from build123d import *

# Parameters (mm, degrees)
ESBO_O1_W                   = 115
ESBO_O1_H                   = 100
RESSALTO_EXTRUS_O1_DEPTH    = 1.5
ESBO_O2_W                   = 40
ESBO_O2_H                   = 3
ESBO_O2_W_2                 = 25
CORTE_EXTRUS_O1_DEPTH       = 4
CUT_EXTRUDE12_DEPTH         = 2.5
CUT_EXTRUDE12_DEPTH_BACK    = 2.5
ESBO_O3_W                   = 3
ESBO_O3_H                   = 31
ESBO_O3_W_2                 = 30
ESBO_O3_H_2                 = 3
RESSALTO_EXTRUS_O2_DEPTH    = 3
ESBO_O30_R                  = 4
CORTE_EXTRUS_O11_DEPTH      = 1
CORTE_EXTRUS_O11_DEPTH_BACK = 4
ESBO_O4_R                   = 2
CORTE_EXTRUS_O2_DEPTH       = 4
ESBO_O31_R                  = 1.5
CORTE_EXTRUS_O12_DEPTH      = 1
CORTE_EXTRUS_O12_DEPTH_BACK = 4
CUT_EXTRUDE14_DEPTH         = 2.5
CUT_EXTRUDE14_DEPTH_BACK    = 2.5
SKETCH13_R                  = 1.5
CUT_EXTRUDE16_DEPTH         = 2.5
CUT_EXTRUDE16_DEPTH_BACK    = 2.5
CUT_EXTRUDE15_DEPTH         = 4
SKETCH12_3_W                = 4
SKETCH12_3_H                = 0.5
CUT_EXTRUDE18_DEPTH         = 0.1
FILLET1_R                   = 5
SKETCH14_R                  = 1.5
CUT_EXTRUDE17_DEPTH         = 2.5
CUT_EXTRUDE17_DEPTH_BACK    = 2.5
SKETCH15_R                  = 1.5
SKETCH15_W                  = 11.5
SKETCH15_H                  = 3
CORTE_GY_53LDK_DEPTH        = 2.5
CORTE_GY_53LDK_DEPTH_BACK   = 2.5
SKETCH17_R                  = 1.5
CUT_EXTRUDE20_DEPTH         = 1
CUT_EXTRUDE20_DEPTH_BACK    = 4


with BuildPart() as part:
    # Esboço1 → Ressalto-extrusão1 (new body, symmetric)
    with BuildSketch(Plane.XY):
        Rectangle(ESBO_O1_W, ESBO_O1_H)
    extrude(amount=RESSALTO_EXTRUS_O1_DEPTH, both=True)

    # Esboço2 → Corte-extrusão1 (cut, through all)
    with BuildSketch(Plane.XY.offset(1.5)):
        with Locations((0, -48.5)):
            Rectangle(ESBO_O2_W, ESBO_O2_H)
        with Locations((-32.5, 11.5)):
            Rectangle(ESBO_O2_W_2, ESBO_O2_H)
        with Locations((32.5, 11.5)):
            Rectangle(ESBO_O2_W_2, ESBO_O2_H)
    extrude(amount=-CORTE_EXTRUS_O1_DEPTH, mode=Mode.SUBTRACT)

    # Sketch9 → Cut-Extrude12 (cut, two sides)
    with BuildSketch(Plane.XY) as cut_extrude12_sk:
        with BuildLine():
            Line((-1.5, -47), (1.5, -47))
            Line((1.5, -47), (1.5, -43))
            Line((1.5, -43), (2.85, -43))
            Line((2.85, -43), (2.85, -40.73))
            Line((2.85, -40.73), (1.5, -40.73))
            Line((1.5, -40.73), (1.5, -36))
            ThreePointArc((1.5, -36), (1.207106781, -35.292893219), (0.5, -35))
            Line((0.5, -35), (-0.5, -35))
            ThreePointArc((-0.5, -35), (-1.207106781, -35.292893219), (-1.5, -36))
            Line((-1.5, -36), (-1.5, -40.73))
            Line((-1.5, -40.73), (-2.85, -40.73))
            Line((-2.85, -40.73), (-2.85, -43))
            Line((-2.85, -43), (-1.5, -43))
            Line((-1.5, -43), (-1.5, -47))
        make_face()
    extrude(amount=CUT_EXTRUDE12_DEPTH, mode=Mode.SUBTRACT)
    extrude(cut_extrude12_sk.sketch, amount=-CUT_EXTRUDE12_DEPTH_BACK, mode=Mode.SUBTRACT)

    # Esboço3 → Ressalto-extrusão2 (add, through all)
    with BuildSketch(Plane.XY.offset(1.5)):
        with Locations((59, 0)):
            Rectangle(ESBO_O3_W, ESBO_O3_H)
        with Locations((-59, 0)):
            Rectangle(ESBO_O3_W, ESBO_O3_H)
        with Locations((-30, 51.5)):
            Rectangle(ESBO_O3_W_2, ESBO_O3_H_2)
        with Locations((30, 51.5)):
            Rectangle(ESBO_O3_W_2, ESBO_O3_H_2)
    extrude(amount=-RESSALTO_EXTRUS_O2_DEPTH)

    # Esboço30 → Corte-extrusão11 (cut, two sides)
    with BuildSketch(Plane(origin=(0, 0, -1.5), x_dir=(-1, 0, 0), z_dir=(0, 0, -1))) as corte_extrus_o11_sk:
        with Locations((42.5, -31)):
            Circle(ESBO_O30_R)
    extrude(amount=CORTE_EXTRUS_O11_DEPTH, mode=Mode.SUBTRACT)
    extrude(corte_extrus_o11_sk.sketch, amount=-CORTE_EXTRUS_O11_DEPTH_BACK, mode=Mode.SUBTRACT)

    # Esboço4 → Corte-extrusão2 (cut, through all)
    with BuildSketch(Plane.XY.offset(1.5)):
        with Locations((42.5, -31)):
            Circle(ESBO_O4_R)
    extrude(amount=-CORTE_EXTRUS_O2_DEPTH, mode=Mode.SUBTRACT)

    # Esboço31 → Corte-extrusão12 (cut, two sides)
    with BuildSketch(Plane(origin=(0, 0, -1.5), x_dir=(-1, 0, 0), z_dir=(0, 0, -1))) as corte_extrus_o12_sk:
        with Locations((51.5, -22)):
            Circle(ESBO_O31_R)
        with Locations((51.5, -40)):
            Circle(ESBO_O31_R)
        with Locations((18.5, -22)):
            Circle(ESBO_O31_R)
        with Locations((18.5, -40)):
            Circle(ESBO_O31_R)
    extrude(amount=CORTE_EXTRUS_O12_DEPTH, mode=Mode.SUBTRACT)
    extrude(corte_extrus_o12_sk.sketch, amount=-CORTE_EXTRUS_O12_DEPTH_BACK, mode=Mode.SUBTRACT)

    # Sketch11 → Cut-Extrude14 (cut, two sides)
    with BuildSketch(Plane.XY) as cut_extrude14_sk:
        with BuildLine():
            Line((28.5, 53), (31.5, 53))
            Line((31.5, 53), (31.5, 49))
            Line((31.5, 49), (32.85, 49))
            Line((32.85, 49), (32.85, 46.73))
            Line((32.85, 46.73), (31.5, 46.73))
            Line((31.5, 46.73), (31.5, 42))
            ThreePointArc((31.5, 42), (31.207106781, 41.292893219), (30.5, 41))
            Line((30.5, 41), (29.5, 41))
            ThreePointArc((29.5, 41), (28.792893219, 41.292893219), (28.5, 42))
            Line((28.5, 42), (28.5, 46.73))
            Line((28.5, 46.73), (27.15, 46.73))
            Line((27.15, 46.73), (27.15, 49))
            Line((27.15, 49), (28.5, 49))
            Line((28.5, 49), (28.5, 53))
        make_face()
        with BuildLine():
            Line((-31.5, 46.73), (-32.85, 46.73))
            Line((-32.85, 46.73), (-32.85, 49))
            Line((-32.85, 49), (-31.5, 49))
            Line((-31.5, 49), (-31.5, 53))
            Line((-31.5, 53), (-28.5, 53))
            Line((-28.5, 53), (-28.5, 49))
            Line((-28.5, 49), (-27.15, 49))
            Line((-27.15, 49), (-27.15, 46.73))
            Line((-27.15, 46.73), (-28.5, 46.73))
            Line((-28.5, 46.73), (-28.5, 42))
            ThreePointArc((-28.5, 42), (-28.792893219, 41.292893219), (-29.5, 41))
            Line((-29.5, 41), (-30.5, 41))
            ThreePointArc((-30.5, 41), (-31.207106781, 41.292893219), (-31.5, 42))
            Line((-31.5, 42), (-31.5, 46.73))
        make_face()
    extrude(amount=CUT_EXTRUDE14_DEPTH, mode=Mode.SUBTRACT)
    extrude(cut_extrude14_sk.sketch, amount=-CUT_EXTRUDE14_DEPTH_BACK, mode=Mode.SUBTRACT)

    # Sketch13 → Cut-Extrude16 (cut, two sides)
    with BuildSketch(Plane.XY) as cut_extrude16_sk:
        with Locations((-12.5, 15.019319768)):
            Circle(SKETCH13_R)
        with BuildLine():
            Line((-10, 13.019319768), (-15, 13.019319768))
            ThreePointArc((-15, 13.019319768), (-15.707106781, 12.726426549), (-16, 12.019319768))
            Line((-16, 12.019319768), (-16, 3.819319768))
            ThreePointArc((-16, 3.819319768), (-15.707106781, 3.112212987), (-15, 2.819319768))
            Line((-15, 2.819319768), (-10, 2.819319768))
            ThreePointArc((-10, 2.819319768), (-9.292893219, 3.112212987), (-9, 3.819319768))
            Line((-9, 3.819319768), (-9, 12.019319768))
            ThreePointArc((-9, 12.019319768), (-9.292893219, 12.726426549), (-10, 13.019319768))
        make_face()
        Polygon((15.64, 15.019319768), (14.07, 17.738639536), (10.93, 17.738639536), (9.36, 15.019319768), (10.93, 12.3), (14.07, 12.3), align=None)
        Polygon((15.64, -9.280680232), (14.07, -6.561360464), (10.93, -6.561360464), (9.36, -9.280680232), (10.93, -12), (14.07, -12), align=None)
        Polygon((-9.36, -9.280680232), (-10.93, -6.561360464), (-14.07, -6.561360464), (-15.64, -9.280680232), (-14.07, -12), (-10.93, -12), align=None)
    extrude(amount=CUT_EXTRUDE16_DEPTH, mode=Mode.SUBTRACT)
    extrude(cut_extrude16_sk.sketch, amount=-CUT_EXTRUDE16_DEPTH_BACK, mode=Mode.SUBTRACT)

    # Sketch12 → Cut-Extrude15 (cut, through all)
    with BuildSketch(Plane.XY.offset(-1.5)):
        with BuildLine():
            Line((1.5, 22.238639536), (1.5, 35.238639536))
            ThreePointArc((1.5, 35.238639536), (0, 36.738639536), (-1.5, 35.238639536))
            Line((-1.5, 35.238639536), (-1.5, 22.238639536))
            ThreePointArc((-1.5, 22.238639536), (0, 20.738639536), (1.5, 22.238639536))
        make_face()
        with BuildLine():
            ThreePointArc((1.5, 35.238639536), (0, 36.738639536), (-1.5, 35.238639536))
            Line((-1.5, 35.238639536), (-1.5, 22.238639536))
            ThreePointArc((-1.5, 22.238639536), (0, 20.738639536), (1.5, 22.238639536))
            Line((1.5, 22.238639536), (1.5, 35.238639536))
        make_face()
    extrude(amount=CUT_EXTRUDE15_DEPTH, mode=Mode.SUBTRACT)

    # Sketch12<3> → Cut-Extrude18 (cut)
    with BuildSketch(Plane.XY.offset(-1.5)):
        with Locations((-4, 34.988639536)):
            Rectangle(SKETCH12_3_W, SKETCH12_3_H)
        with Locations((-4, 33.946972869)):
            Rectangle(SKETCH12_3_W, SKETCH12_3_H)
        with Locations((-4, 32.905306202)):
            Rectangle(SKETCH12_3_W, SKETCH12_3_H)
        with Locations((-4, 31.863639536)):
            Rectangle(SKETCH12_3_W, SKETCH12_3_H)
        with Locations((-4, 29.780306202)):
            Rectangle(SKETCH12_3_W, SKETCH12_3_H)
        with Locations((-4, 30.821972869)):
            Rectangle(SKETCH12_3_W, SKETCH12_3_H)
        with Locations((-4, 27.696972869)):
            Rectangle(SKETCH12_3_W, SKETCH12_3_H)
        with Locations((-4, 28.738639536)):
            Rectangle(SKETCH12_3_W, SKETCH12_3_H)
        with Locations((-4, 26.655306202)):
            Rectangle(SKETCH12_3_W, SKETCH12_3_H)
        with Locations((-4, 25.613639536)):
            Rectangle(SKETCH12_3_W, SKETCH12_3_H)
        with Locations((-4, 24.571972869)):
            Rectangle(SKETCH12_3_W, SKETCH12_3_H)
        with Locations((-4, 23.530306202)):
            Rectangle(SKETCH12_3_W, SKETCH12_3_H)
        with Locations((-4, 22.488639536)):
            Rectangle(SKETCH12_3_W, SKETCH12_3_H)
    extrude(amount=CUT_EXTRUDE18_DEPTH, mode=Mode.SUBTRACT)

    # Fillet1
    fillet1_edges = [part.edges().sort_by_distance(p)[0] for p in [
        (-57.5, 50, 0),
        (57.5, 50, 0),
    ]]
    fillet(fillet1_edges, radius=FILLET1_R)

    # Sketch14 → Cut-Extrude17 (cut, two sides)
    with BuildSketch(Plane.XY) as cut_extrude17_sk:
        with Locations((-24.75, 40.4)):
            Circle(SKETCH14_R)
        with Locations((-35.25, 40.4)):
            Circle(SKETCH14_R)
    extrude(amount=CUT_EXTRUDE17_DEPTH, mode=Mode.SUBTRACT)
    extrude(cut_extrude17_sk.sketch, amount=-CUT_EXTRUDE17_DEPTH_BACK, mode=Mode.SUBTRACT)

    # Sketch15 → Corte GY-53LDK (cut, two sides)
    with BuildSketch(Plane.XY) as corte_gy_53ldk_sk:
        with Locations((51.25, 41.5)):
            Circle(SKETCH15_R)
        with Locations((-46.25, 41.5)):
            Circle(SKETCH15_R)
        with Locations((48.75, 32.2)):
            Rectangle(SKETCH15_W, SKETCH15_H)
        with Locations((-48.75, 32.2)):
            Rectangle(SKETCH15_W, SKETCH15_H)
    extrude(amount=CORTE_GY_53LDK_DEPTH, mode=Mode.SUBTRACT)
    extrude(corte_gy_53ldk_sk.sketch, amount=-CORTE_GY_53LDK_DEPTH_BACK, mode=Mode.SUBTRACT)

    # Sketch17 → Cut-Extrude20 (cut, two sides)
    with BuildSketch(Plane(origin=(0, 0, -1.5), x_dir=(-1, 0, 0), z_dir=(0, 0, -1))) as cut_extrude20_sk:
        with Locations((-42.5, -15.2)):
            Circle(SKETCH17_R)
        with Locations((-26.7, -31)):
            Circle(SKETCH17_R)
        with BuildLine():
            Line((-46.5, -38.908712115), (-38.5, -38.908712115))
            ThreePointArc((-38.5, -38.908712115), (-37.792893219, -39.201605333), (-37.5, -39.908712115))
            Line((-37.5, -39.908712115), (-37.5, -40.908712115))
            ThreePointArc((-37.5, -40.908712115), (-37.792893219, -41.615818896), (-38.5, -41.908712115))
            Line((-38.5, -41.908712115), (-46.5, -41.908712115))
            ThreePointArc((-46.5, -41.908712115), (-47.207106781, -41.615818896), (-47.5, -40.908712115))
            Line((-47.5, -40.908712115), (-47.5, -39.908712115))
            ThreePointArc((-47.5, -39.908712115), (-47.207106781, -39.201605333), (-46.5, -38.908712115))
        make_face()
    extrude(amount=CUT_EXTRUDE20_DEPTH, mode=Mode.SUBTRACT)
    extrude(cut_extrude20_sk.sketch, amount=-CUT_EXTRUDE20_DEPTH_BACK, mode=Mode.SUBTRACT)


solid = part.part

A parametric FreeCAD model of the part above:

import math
import FreeCAD as App
import Part
import Sketcher
Q = App.Units.Quantity


def edges_at(feature, points):
    """Names of the edges that pass closest to the given points."""
    edges = feature.Shape.Edges
    near = lambda p: min(range(len(edges)), key=lambda i: edges[i].distToShape(Part.Vertex(*p))[0])
    return sorted({f"Edge{near(p) + 1}" for p in points})


def add_polygon(sketch, points):
    """Adds a closed chain of lines whose ends are joined by coincident constraints."""
    first, n = sketch.GeometryCount, len(points)
    for a, b in zip(points, points[1:] + points[:1]):
        sketch.addGeometry(Part.LineSegment(App.Vector(*a, 0), App.Vector(*b, 0)), False)
    for i in range(n):
        sketch.addConstraint(Sketcher.Constraint("Coincident", first + i, 2, first + (i + 1) % n, 1))

doc = App.newDocument("Part")
params = doc.addObject("Spreadsheet::Sheet", "Params")
for row, (alias, value) in enumerate([
    ("sketch1_width", "115 mm"),
    ("sketch1_height", "100 mm"),
    ("pad1_length", "3 mm"),
    ("sketch2_width", "40 mm"),
    ("sketch2_width2", "25 mm"),
    ("sketch2_height", "3 mm"),
    ("sketch3_radius", "1 mm"),
    ("sketch3_width", "3 mm"),
    ("sketch3_height", "4 mm"),
    ("sketch3_width2", "1.35 mm"),
    ("sketch3_height2", "2.27 mm"),
    ("sketch4_width", "3 mm"),
    ("sketch4_width2", "30 mm"),
    ("sketch4_height", "31 mm"),
    ("sketch5_diameter", "8 mm"),
    ("sketch6_diameter", "4 mm"),
    ("sketch7_diameter", "3 mm"),
    ("sketch8_radius", "1 mm"),
    ("sketch8_width", "3 mm"),
    ("sketch8_height", "4 mm"),
    ("sketch8_width2", "1.35 mm"),
    ("sketch8_height2", "2.27 mm"),
    ("sketch9_diameter", "3 mm"),
    ("sketch9_radius", "1 mm"),
    ("sketch9_width", "5 mm"),
    ("sketch9_height", "8.2 mm"),
    ("sketch9_width2", "3.14 mm"),
    ("sketch10_radius", "1.5 mm"),
    ("sketch10_height", "13 mm"),
    ("sketch11_width", "4 mm"),
    ("sketch11_height", "0.5 mm"),
    ("pocket9_length", "0.1 mm"),
    ("fillet_radius", "5 mm"),
    ("sketch12_diameter", "3 mm"),
    ("sketch13_diameter", "3 mm"),
    ("sketch13_height", "3 mm"),
    ("sketch13_width", "11.5 mm"),
    ("sketch14_diameter", "3 mm"),
    ("sketch14_radius", "1 mm"),
    ("sketch14_width", "8 mm"),
    ("sketch14_height", "1 mm"),
], start=1):
    params.set(f"A{row}", alias)
    params.set(f"B{row}", "=" + value)
    params.setAlias(f"B{row}", alias)

body = doc.addObject("PartDesign::Body", "Body")

# Sketch on XY plane
sketch1 = body.newObject("Sketcher::SketchObject", "Sketch")
sketch1.AttachmentSupport = (doc.getObject("XY_Plane"), [""])
sketch1.MapMode = "FlatFace"
add_polygon(sketch1, [(-58, 50), (-58, -50), (58, -50), (58, 50)])  # lines 0-3
sketch1.addConstraint([
    Sketcher.Constraint("Vertical", 0),
    Sketcher.Constraint("Horizontal", 1),
    Sketcher.Constraint("Vertical", 2),
    Sketcher.Constraint("Horizontal", 3),
    Sketcher.Constraint("Symmetric", 0, 2, 2, 2, -1, 1),
    Sketcher.Constraint("DistanceX", 1, 1, 1, 2, 115.0),
    Sketcher.Constraint("DistanceY", 0, 2, 0, 1, 100.0),
])
sketch1.setExpression("Constraints[9]", "Params.sketch1_width")
sketch1.setExpression("Constraints[10]", "Params.sketch1_height")
pad1 = body.newObject("PartDesign::Pad", "Pad")
pad1.Profile = sketch1
pad1.setExpression("Length", "Params.pad1_length")
pad1.Midplane = True

# Sketch on XY plane
sketch2 = body.newObject("Sketcher::SketchObject", "Sketch001")
sketch2.AttachmentSupport = (doc.getObject("XY_Plane"), [""])
sketch2.MapMode = "FlatFace"
sketch2.AttachmentOffset = App.Placement(App.Vector(0, 0, 1.5), App.Rotation())
add_polygon(sketch2, [(-20, -47), (-20, -50), (20, -50), (20, -47)])  # lines 0-3
add_polygon(sketch2, [(-45, 13), (-45, 10), (-20, 10), (-20, 13)])  # lines 4-7
add_polygon(sketch2, [(20, 13), (20, 10), (45, 10), (45, 13)])  # lines 8-11
sketch2.addConstraint([
    Sketcher.Constraint("Vertical", 0),
    Sketcher.Constraint("Horizontal", 1),
    Sketcher.Constraint("Vertical", 2),
    Sketcher.Constraint("Horizontal", 3),
    Sketcher.Constraint("Vertical", 4),
    Sketcher.Constraint("Horizontal", 5),
    Sketcher.Constraint("Vertical", 6),
    Sketcher.Constraint("Horizontal", 7),
    Sketcher.Constraint("Vertical", 8),
    Sketcher.Constraint("Horizontal", 9),
    Sketcher.Constraint("Vertical", 10),
    Sketcher.Constraint("Horizontal", 11),
    Sketcher.Constraint("Symmetric", 5, 2, 8, 2, -2),
    Sketcher.Constraint("Symmetric", 7, 2, 10, 2, -2),
    Sketcher.Constraint("Vertical", 3, 2, 5, 2),
    Sketcher.Constraint("Vertical", 2, 2, 8, 2),
    Sketcher.Constraint("Equal", 2, 4),
    Sketcher.Constraint("DistanceX", 1, 1, 1, 2, 40.0),
    Sketcher.Constraint("DistanceX", 5, 1, 5, 2, 25.0),
    Sketcher.Constraint("DistanceY", 0, 2, 0, 1, 3.0),
    Sketcher.Constraint("DistanceY", 0, 2, -1, 1, 50.0),
    Sketcher.Constraint("DistanceY", -1, 1, 4, 2, 10.0),
])
sketch2.setExpression("Constraints[29]", "Params.sketch2_width")
sketch2.setExpression("Constraints[30]", "Params.sketch2_width2")
sketch2.setExpression("Constraints[31]", "Params.sketch2_height")
pocket1 = body.newObject("PartDesign::Pocket", "Pocket")
pocket1.Profile = sketch2
pocket1.Type = "ThroughAll"

# Sketch on XY plane
sketch3 = body.newObject("Sketcher::SketchObject", "Sketch002")
sketch3.AttachmentSupport = (doc.getObject("XY_Plane"), [""])
sketch3.MapMode = "FlatFace"
sketch3.addGeometry([
    Part.LineSegment(App.Vector(-1.5, -47, 0), App.Vector(1.5, -47, 0)),  # 0
    Part.LineSegment(App.Vector(1.5, -47, 0), App.Vector(1.5, -43, 0)),  # 1
    Part.LineSegment(App.Vector(1.5, -43, 0), App.Vector(2.9, -43, 0)),  # 2
    Part.LineSegment(App.Vector(2.9, -43, 0), App.Vector(2.9, -40.7, 0)),  # 3
    Part.LineSegment(App.Vector(2.9, -40.7, 0), App.Vector(1.5, -40.7, 0)),  # 4
    Part.LineSegment(App.Vector(1.5, -40.7, 0), App.Vector(1.5, -36, 0)),  # 5
    Part.ArcOfCircle(Part.Circle(App.Vector(0.5, -36, 0), App.Vector(0, 0, 1), 1), math.radians(0), math.radians(90)),  # 6
    Part.LineSegment(App.Vector(0.5, -35, 0), App.Vector(-0.5, -35, 0)),  # 7
    Part.ArcOfCircle(Part.Circle(App.Vector(-0.5, -36, 0), App.Vector(0, 0, 1), 1), math.radians(90), math.radians(180)),  # 8
    Part.LineSegment(App.Vector(-1.5, -36, 0), App.Vector(-1.5, -40.7, 0)),  # 9
    Part.LineSegment(App.Vector(-1.5, -40.7, 0), App.Vector(-2.9, -40.7, 0)),  # 10
    Part.LineSegment(App.Vector(-2.9, -40.7, 0), App.Vector(-2.9, -43, 0)),  # 11
    Part.LineSegment(App.Vector(-2.9, -43, 0), App.Vector(-1.5, -43, 0)),  # 12
    Part.LineSegment(App.Vector(-1.5, -43, 0), App.Vector(-1.5, -47, 0)),  # 13
], False)
sketch3.addConstraint([
    Sketcher.Constraint("Coincident", 0, 2, 1, 1),
    Sketcher.Constraint("Coincident", 1, 2, 2, 1),
    Sketcher.Constraint("Coincident", 2, 2, 3, 1),
    Sketcher.Constraint("Coincident", 3, 2, 4, 1),
    Sketcher.Constraint("Coincident", 4, 2, 5, 1),
    Sketcher.Constraint("Tangent", 5, 2, 6, 1),
    Sketcher.Constraint("Tangent", 6, 2, 7, 1),
    Sketcher.Constraint("Tangent", 7, 2, 8, 1),
    Sketcher.Constraint("Tangent", 8, 2, 9, 1),
    Sketcher.Constraint("Coincident", 9, 2, 10, 1),
    Sketcher.Constraint("Coincident", 10, 2, 11, 1),
    Sketcher.Constraint("Coincident", 11, 2, 12, 1),
    Sketcher.Constraint("Coincident", 12, 2, 13, 1),
    Sketcher.Constraint("Coincident", 13, 2, 0, 1),
    Sketcher.Constraint("Horizontal", 0),
    Sketcher.Constraint("Vertical", 1),
    Sketcher.Constraint("Horizontal", 2),
    Sketcher.Constraint("Vertical", 3),
    Sketcher.Constraint("Horizontal", 4),
    Sketcher.Constraint("Vertical", 5),
    Sketcher.Constraint("Horizontal", 7),
    Sketcher.Constraint("Vertical", 9),
    Sketcher.Constraint("Horizontal", 10),
    Sketcher.Constraint("Vertical", 11),
    Sketcher.Constraint("Horizontal", 12),
    Sketcher.Constraint("Vertical", 13),
    Sketcher.Constraint("Equal", 6, 8),
    Sketcher.Constraint("Symmetric", 4, 2, 9, 2, -2),
    Sketcher.Constraint("Symmetric", 2, 2, 11, 2, -2),
    Sketcher.Constraint("Vertical", 1, 2, 4, 2),
    Sketcher.Constraint("Vertical", 9, 2, 12, 2),
    Sketcher.Constraint("Radius", 6, 1.0),
    Sketcher.Constraint("DistanceX", 0, 1, 0, 2, 3.0),
    Sketcher.Constraint("DistanceY", 1, 1, 1, 2, 4.0),
    Sketcher.Constraint("DistanceY", 6, 3, -1, 1, 36.0),
    Sketcher.Constraint("DistanceY", 0, 2, -1, 1, 47.0),
    Sketcher.Constraint("DistanceX", 2, 1, 2, 2, 1.35),
    Sketcher.Constraint("DistanceY", 3, 1, 3, 2, 2.27),
])
sketch3.setExpression("Constraints[31]", "Params.sketch3_radius")
sketch3.setExpression("Constraints[32]", "Params.sketch3_width")
sketch3.setExpression("Constraints[33]", "Params.sketch3_height")
sketch3.setExpression("Constraints[36]", "Params.sketch3_width2")
sketch3.setExpression("Constraints[37]", "Params.sketch3_height2")
pocket2 = body.newObject("PartDesign::Pocket", "Pocket001")
pocket2.Profile = sketch3
pocket2.Type = "ThroughAll"
pocket2.Midplane = True

# Sketch on XY plane
sketch4 = body.newObject("Sketcher::SketchObject", "Sketch003")
sketch4.AttachmentSupport = (doc.getObject("XY_Plane"), [""])
sketch4.MapMode = "FlatFace"
sketch4.AttachmentOffset = App.Placement(App.Vector(0, 0, 1.5), App.Rotation())
add_polygon(sketch4, [(57.5, 15.5), (57.5, -15.5), (60.5, -15.5), (60.5, 15.5)])  # lines 0-3
add_polygon(sketch4, [(-60.5, 15.5), (-60.5, -15.5), (-57.5, -15.5), (-57.5, 15.5)])  # lines 4-7
add_polygon(sketch4, [(-45, 53), (-45, 50), (-15, 50), (-15, 53)])  # lines 8-11
add_polygon(sketch4, [(15, 53), (15, 50), (45, 50), (45, 53)])  # lines 12-15
sketch4.addConstraint([
    Sketcher.Constraint("Vertical", 0),
    Sketcher.Constraint("Horizontal", 1),
    Sketcher.Constraint("Vertical", 2),
    Sketcher.Constraint("Horizontal", 3),
    Sketcher.Constraint("Vertical", 4),
    Sketcher.Constraint("Horizontal", 5),
    Sketcher.Constraint("Vertical", 6),
    Sketcher.Constraint("Horizontal", 7),
    Sketcher.Constraint("Vertical", 8),
    Sketcher.Constraint("Horizontal", 9),
    Sketcher.Constraint("Vertical", 10),
    Sketcher.Constraint("Horizontal", 11),
    Sketcher.Constraint("Vertical", 12),
    Sketcher.Constraint("Horizontal", 13),
    Sketcher.Constraint("Vertical", 14),
    Sketcher.Constraint("Horizontal", 15),
    Sketcher.Constraint("Symmetric", 2, 2, 4, 2, -1, 1),
    Sketcher.Constraint("Symmetric", 0, 2, 6, 2, -1, 1),
    Sketcher.Constraint("Symmetric", 9, 2, 12, 2, -2),
    Sketcher.Constraint("Symmetric", 11, 2, 14, 2, -2),
    Sketcher.Constraint("Horizontal", 1, 2, 4, 2),
    Sketcher.Constraint("Equal", 7, 8),
    Sketcher.Constraint("DistanceX", 1, 1, 1, 2, 3.0),
    Sketcher.Constraint("DistanceX", 9, 1, 9, 2, 30.0),
    Sketcher.Constraint("DistanceY", 0, 2, 0, 1, 31.0),
    Sketcher.Constraint("DistanceX", 8, 2, -1, 1, 45.0),
    Sketcher.Constraint("DistanceY", -1, 1, 8, 2, 50.0),
    Sketcher.Constraint("DistanceX", 4, 2, 0, 2, 118.0),
])
sketch4.setExpression("Constraints[38]", "Params.sketch4_width")
sketch4.setExpression("Constraints[39]", "Params.sketch4_width2")
sketch4.setExpression("Constraints[40]", "Params.sketch4_height")
pad2 = body.newObject("PartDesign::Pad", "Pad001")
pad2.Profile = sketch4
pad2.Type = "UpToLast"
pad2.Reversed = True

# Sketch on XY plane
sketch5 = body.newObject("Sketcher::SketchObject", "Sketch004")
sketch5.AttachmentSupport = (doc.getObject("XY_Plane"), [""])
sketch5.MapMode = "FlatFace"
sketch5.AttachmentOffset = App.Placement(App.Vector(0, 0, -1.5), App.Rotation())
sketch5.addGeometry(Part.Circle(App.Vector(-42.5, -31, 0), App.Vector(0, 0, 1), 4), False)
sketch5.addConstraint([
    Sketcher.Constraint("Diameter", 0, 8.0),
    Sketcher.Constraint("DistanceY", 0, 3, -1, 1, 31.0),
    Sketcher.Constraint("DistanceX", 0, 3, -1, 1, 42.5),
])
sketch5.setExpression("Constraints[0]", "Params.sketch5_diameter")
pocket3 = body.newObject("PartDesign::Pocket", "Pocket002")
pocket3.Profile = sketch5
pocket3.Type = "ThroughAll"
pocket3.Midplane = True

# Sketch on XY plane
sketch6 = body.newObject("Sketcher::SketchObject", "Sketch005")
sketch6.AttachmentSupport = (doc.getObject("XY_Plane"), [""])
sketch6.MapMode = "FlatFace"
sketch6.AttachmentOffset = App.Placement(App.Vector(0, 0, 1.5), App.Rotation())
sketch6.addGeometry(Part.Circle(App.Vector(42.5, -31, 0), App.Vector(0, 0, 1), 2), False)
sketch6.addConstraint([
    Sketcher.Constraint("Diameter", 0, 4.0),
    Sketcher.Constraint("DistanceY", 0, 3, -1, 1, 31.0),
    Sketcher.Constraint("DistanceX", -1, 1, 0, 3, 42.5),
])
sketch6.setExpression("Constraints[0]", "Params.sketch6_diameter")
pocket4 = body.newObject("PartDesign::Pocket", "Pocket003")
pocket4.Profile = sketch6
pocket4.Type = "ThroughAll"

# Sketch on XY plane
sketch7 = body.newObject("Sketcher::SketchObject", "Sketch006")
sketch7.AttachmentSupport = (doc.getObject("XY_Plane"), [""])
sketch7.MapMode = "FlatFace"
sketch7.AttachmentOffset = App.Placement(App.Vector(0, 0, -1.5), App.Rotation())
sketch7.addGeometry([
    Part.Circle(App.Vector(-51.5, -22, 0), App.Vector(0, 0, 1), 1.5),
    Part.Circle(App.Vector(-51.5, -40, 0), App.Vector(0, 0, 1), 1.5),
    Part.Circle(App.Vector(-18.5, -22, 0), App.Vector(0, 0, 1), 1.5),
    Part.Circle(App.Vector(-18.5, -40, 0), App.Vector(0, 0, 1), 1.5),
], False)
sketch7.addConstraint([
    Sketcher.Constraint("Equal", 0, 1),
    Sketcher.Constraint("Equal", 1, 2),
    Sketcher.Constraint("Equal", 2, 3),
    Sketcher.Constraint("Horizontal", 0, 3, 2, 3),
    Sketcher.Constraint("Horizontal", 1, 3, 3, 3),
    Sketcher.Constraint("Vertical", 0, 3, 1, 3),
    Sketcher.Constraint("Vertical", 2, 3, 3, 3),
    Sketcher.Constraint("Diameter", 0, 3.0),
    Sketcher.Constraint("DistanceY", 0, 3, -1, 1, 22.0),
    Sketcher.Constraint("DistanceY", 1, 3, -1, 1, 40.0),
    Sketcher.Constraint("DistanceX", 0, 3, 2, 3, 33.0),
    Sketcher.Constraint("DistanceX", 0, 3, -1, 1, 51.5),
])
sketch7.setExpression("Constraints[7]", "Params.sketch7_diameter")
pocket5 = body.newObject("PartDesign::Pocket", "Pocket004")
pocket5.Profile = sketch7
pocket5.Type = "ThroughAll"
pocket5.Midplane = True

# Sketch on XY plane
sketch8 = body.newObject("Sketcher::SketchObject", "Sketch007")
sketch8.AttachmentSupport = (doc.getObject("XY_Plane"), [""])
sketch8.MapMode = "FlatFace"
sketch8.addGeometry([
    Part.LineSegment(App.Vector(31.5, 53, 0), App.Vector(28.5, 53, 0)),  # 0
    Part.LineSegment(App.Vector(28.5, 53, 0), App.Vector(28.5, 49, 0)),  # 1
    Part.LineSegment(App.Vector(28.5, 49, 0), App.Vector(27.1, 49, 0)),  # 2
    Part.LineSegment(App.Vector(27.1, 49, 0), App.Vector(27.1, 46.7, 0)),  # 3
    Part.LineSegment(App.Vector(27.1, 46.7, 0), App.Vector(28.5, 46.7, 0)),  # 4
    Part.LineSegment(App.Vector(28.5, 46.7, 0), App.Vector(28.5, 42, 0)),  # 5
    Part.ArcOfCircle(Part.Circle(App.Vector(29.5, 42, 0), App.Vector(0, 0, 1), 1), math.radians(-180), math.radians(-90)),  # 6
    Part.LineSegment(App.Vector(29.5, 41, 0), App.Vector(30.5, 41, 0)),  # 7
    Part.ArcOfCircle(Part.Circle(App.Vector(30.5, 42, 0), App.Vector(0, 0, 1), 1), math.radians(-90), math.radians(0)),  # 8
    Part.LineSegment(App.Vector(31.5, 42, 0), App.Vector(31.5, 46.7, 0)),  # 9
    Part.LineSegment(App.Vector(31.5, 46.7, 0), App.Vector(32.9, 46.7, 0)),  # 10
    Part.LineSegment(App.Vector(32.9, 46.7, 0), App.Vector(32.9, 49, 0)),  # 11
    Part.LineSegment(App.Vector(32.9, 49, 0), App.Vector(31.5, 49, 0)),  # 12
    Part.LineSegment(App.Vector(31.5, 49, 0), App.Vector(31.5, 53, 0)),  # 13
    Part.LineSegment(App.Vector(-32.9, 46.7, 0), App.Vector(-31.5, 46.7, 0)),  # 14
    Part.LineSegment(App.Vector(-31.5, 46.7, 0), App.Vector(-31.5, 42, 0)),  # 15
    Part.ArcOfCircle(Part.Circle(App.Vector(-30.5, 42, 0), App.Vector(0, 0, 1), 1), math.radians(-180), math.radians(-90)),  # 16
    Part.LineSegment(App.Vector(-30.5, 41, 0), App.Vector(-29.5, 41, 0)),  # 17
    Part.ArcOfCircle(Part.Circle(App.Vector(-29.5, 42, 0), App.Vector(0, 0, 1), 1), math.radians(-90), math.radians(0)),  # 18
    Part.LineSegment(App.Vector(-28.5, 42, 0), App.Vector(-28.5, 46.7, 0)),  # 19
    Part.LineSegment(App.Vector(-28.5, 46.7, 0), App.Vector(-27.1, 46.7, 0)),  # 20
    Part.LineSegment(App.Vector(-27.1, 46.7, 0), App.Vector(-27.1, 49, 0)),  # 21
    Part.LineSegment(App.Vector(-27.1, 49, 0), App.Vector(-28.5, 49, 0)),  # 22
    Part.LineSegment(App.Vector(-28.5, 49, 0), App.Vector(-28.5, 53, 0)),  # 23
    Part.LineSegment(App.Vector(-28.5, 53, 0), App.Vector(-31.5, 53, 0)),  # 24
    Part.LineSegment(App.Vector(-31.5, 53, 0), App.Vector(-31.5, 49, 0)),  # 25
    Part.LineSegment(App.Vector(-31.5, 49, 0), App.Vector(-32.9, 49, 0)),  # 26
    Part.LineSegment(App.Vector(-32.9, 49, 0), App.Vector(-32.9, 46.7, 0)),  # 27
], False)
sketch8.addConstraint([
    Sketcher.Constraint("Coincident", 0, 2, 1, 1),
    Sketcher.Constraint("Coincident", 1, 2, 2, 1),
    Sketcher.Constraint("Coincident", 2, 2, 3, 1),
    Sketcher.Constraint("Coincident", 3, 2, 4, 1),
    Sketcher.Constraint("Coincident", 4, 2, 5, 1),
    Sketcher.Constraint("Tangent", 5, 2, 6, 1),
    Sketcher.Constraint("Tangent", 6, 2, 7, 1),
    Sketcher.Constraint("Tangent", 7, 2, 8, 1),
    Sketcher.Constraint("Tangent", 8, 2, 9, 1),
    Sketcher.Constraint("Coincident", 9, 2, 10, 1),
    Sketcher.Constraint("Coincident", 10, 2, 11, 1),
    Sketcher.Constraint("Coincident", 11, 2, 12, 1),
    Sketcher.Constraint("Coincident", 12, 2, 13, 1),
    Sketcher.Constraint("Coincident", 13, 2, 0, 1),
    Sketcher.Constraint("Coincident", 14, 2, 15, 1),
    Sketcher.Constraint("Tangent", 15, 2, 16, 1),
    Sketcher.Constraint("Tangent", 16, 2, 17, 1),
    Sketcher.Constraint("Tangent", 17, 2, 18, 1),
    Sketcher.Constraint("Tangent", 18, 2, 19, 1),
    Sketcher.Constraint("Coincident", 19, 2, 20, 1),
    Sketcher.Constraint("Coincident", 20, 2, 21, 1),
    Sketcher.Constraint("Coincident", 21, 2, 22, 1),
    Sketcher.Constraint("Coincident", 22, 2, 23, 1),
    Sketcher.Constraint("Coincident", 23, 2, 24, 1),
    Sketcher.Constraint("Coincident", 24, 2, 25, 1),
    Sketcher.Constraint("Coincident", 25, 2, 26, 1),
    Sketcher.Constraint("Coincident", 26, 2, 27, 1),
    Sketcher.Constraint("Coincident", 27, 2, 14, 1),
    Sketcher.Constraint("Horizontal", 0),
    Sketcher.Constraint("Vertical", 1),
    Sketcher.Constraint("Horizontal", 2),
    Sketcher.Constraint("Vertical", 3),
    Sketcher.Constraint("Horizontal", 4),
    Sketcher.Constraint("Vertical", 5),
    Sketcher.Constraint("Horizontal", 7),
    Sketcher.Constraint("Vertical", 9),
    Sketcher.Constraint("Horizontal", 10),
    Sketcher.Constraint("Vertical", 11),
    Sketcher.Constraint("Horizontal", 12),
    Sketcher.Constraint("Vertical", 13),
    Sketcher.Constraint("Horizontal", 14),
    Sketcher.Constraint("Vertical", 15),
    Sketcher.Constraint("Horizontal", 17),
    Sketcher.Constraint("Vertical", 19),
    Sketcher.Constraint("Horizontal", 20),
    Sketcher.Constraint("Vertical", 21),
    Sketcher.Constraint("Horizontal", 22),
    Sketcher.Constraint("Vertical", 23),
    Sketcher.Constraint("Horizontal", 24),
    Sketcher.Constraint("Vertical", 25),
    Sketcher.Constraint("Horizontal", 26),
    Sketcher.Constraint("Vertical", 27),
    Sketcher.Constraint("Equal", 6, 8),
    Sketcher.Constraint("Equal", 8, 16),
    Sketcher.Constraint("Equal", 16, 18),
    Sketcher.Constraint("Symmetric", 8, 3, 16, 3, -2),
    Sketcher.Constraint("Symmetric", 4, 2, 19, 2, -2),
    Sketcher.Constraint("Symmetric", 2, 2, 21, 2, -2),
    Sketcher.Constraint("Symmetric", 0, 2, 23, 2, -2),
    Sketcher.Constraint("Symmetric", 12, 2, 25, 2, -2),
    Sketcher.Constraint("Symmetric", 10, 2, 27, 2, -2),
    Sketcher.Constraint("Horizontal", 4, 2, 9, 2),
    Sketcher.Constraint("Horizontal", 2, 2, 11, 2),
    Sketcher.Constraint("Vertical", 1, 2, 4, 2),
    Sketcher.Constraint("Vertical", 9, 2, 12, 2),
    Sketcher.Constraint("Equal", 4, 10),
    Sketcher.Constraint("Radius", 6, 1.0),
    Sketcher.Constraint("DistanceX", 0, 2, 0, 1, 3.0),
    Sketcher.Constraint("DistanceY", 1, 2, 1, 1, 4.0),
    Sketcher.Constraint("DistanceY", -1, 1, 6, 3, 42.0),
    Sketcher.Constraint("DistanceY", -1, 1, 0, 2, 53.0),
    Sketcher.Constraint("DistanceX", 16, 3, 6, 3, 60.0),
    Sketcher.Constraint("DistanceX", 2, 2, 2, 1, 1.35),
    Sketcher.Constraint("DistanceY", 3, 2, 3, 1, 2.27),
])
sketch8.setExpression("Constraints[66]", "Params.sketch8_radius")
sketch8.setExpression("Constraints[67]", "Params.sketch8_width")
sketch8.setExpression("Constraints[68]", "Params.sketch8_height")
sketch8.setExpression("Constraints[72]", "Params.sketch8_width2")
sketch8.setExpression("Constraints[73]", "Params.sketch8_height2")
pocket6 = body.newObject("PartDesign::Pocket", "Pocket005")
pocket6.Profile = sketch8
pocket6.Type = "ThroughAll"
pocket6.Midplane = True

# Sketch on XY plane
sketch9 = body.newObject("Sketcher::SketchObject", "Sketch008")
sketch9.AttachmentSupport = (doc.getObject("XY_Plane"), [""])
sketch9.MapMode = "FlatFace"
sketch9.addGeometry(Part.Circle(App.Vector(-12.5, 15, 0), App.Vector(0, 0, 1), 1.5), False)  # 0
sketch9.addGeometry(Part.LineSegment(App.Vector(-10, 13, 0), App.Vector(-15, 13, 0)), False)  # 1
sketch9.addGeometry(Part.ArcOfCircle(Part.Circle(App.Vector(-15, 12, 0), App.Vector(0, 0, 1), 1), math.radians(90), math.radians(180)), False)  # 2
sketch9.addGeometry(Part.LineSegment(App.Vector(-16, 12, 0), App.Vector(-16, 3.8, 0)), False)  # 3
sketch9.addGeometry(Part.ArcOfCircle(Part.Circle(App.Vector(-15, 3.8, 0), App.Vector(0, 0, 1), 1), math.radians(-180), math.radians(-90)), False)  # 4
sketch9.addGeometry(Part.LineSegment(App.Vector(-15, 2.8, 0), App.Vector(-10, 2.8, 0)), False)  # 5
sketch9.addGeometry(Part.ArcOfCircle(Part.Circle(App.Vector(-10, 3.8, 0), App.Vector(0, 0, 1), 1), math.radians(-90), math.radians(0)), False)  # 6
sketch9.addGeometry(Part.LineSegment(App.Vector(-9, 3.8, 0), App.Vector(-9, 12, 0)), False)  # 7
sketch9.addGeometry(Part.ArcOfCircle(Part.Circle(App.Vector(-10, 12, 0), App.Vector(0, 0, 1), 1), math.radians(0), math.radians(90)), False)  # 8
add_polygon(sketch9, [(15.6, 15), (14.1, 17.7), (10.9, 17.7), (9.4, 15), (10.9, 12.3), (14.1, 12.3)])  # lines 9-14
add_polygon(sketch9, [(15.6, -9.3), (14.1, -6.6), (10.9, -6.6), (9.4, -9.3), (10.9, -12), (14.1, -12)])  # lines 15-20
add_polygon(sketch9, [(-9.4, -9.3), (-10.9, -6.6), (-14.1, -6.6), (-15.6, -9.3), (-14.1, -12), (-10.9, -12)])  # lines 21-26
sketch9.addConstraint([
    Sketcher.Constraint("Tangent", 1, 2, 2, 1),
    Sketcher.Constraint("Tangent", 2, 2, 3, 1),
    Sketcher.Constraint("Tangent", 3, 2, 4, 1),
    Sketcher.Constraint("Tangent", 4, 2, 5, 1),
    Sketcher.Constraint("Tangent", 5, 2, 6, 1),
    Sketcher.Constraint("Tangent", 6, 2, 7, 1),
    Sketcher.Constraint("Tangent", 7, 2, 8, 1),
    Sketcher.Constraint("Tangent", 8, 2, 1, 1),
    Sketcher.Constraint("Horizontal", 1),
    Sketcher.Constraint("Vertical", 3),
    Sketcher.Constraint("Horizontal", 5),
    Sketcher.Constraint("Vertical", 7),
    Sketcher.Constraint("Horizontal", 10),
    Sketcher.Constraint("Horizontal", 13),
    Sketcher.Constraint("Horizontal", 16),
    Sketcher.Constraint("Horizontal", 19),
    Sketcher.Constraint("Horizontal", 22),
    Sketcher.Constraint("Horizontal", 25),
    Sketcher.Constraint("Equal", 2, 4),
    Sketcher.Constraint("Equal", 4, 6),
    Sketcher.Constraint("Equal", 6, 8),
    Sketcher.Constraint("Symmetric", 16, 2, 21, 2, -2),
    Sketcher.Constraint("Symmetric", 20, 2, 23, 2, -2),
    Sketcher.Constraint("Symmetric", 19, 2, 24, 2, -2),
    Sketcher.Constraint("Symmetric", 17, 2, 26, 2, -2),
    Sketcher.Constraint("Parallel", 9, 12),
    Sketcher.Constraint("Parallel", 11, 14),
    Sketcher.Constraint("Parallel", 12, 15),
    Sketcher.Constraint("Parallel", 14, 17),
    Sketcher.Constraint("Parallel", 15, 18),
    Sketcher.Constraint("Parallel", 17, 20),
    Sketcher.Constraint("Parallel", 18, 21),
    Sketcher.Constraint("Parallel", 20, 23),
    Sketcher.Constraint("Parallel", 23, 26),
    Sketcher.Constraint("Horizontal", 0, 3, 11, 2),
    Sketcher.Constraint("Horizontal", 11, 2, 14, 2),
    Sketcher.Constraint("Horizontal", 17, 2, 20, 2),
    Sketcher.Constraint("Vertical", 10, 2, 12, 2),
    Sketcher.Constraint("Vertical", 13, 2, 15, 2),
    Sketcher.Constraint("Vertical", 12, 2, 16, 2),
    Sketcher.Constraint("Vertical", 11, 2, 17, 2),
    Sketcher.Constraint("Vertical", 16, 2, 18, 2),
    Sketcher.Constraint("Diameter", 0, 3.0),
    Sketcher.Constraint("Radius", 2, 1.0),
    Sketcher.Constraint("DistanceX", 1, 2, 1, 1, 5.0),
    Sketcher.Constraint("Angle", 9, Q("120 deg")),
    Sketcher.Constraint("DistanceY", 3, 2, 3, 1, 8.2),
    Sketcher.Constraint("DistanceX", 2, 3, -1, 1, 15.0),
    Sketcher.Constraint("DistanceY", 18, 2, -1, 1, 12.0),
    Sketcher.Constraint("DistanceY", 2, 3, 0, 3, 3.0),
    Sketcher.Constraint("DistanceX", 10, 2, 10, 1, 3.14),
    Sketcher.Constraint("DistanceX", 0, 3, -1, 1, 12.5),
    Sketcher.Constraint("DistanceY", -1, 1, 12, 2, 12.3),
    Sketcher.Constraint("Distance", 9, 3.14),
    Sketcher.Constraint("DistanceX", -1, 1, 9, 2, 14.07),
])
sketch9.setExpression("Constraints[60]", "Params.sketch9_diameter")
sketch9.setExpression("Constraints[61]", "Params.sketch9_radius")
sketch9.setExpression("Constraints[62]", "Params.sketch9_width")
sketch9.setExpression("Constraints[64]", "Params.sketch9_height")
sketch9.setExpression("Constraints[68]", "Params.sketch9_width2")
pocket7 = body.newObject("PartDesign::Pocket", "Pocket006")
pocket7.Profile = sketch9
pocket7.Type = "ThroughAll"
pocket7.Midplane = True

# Sketch on XY plane
sketch10 = body.newObject("Sketcher::SketchObject", "Sketch009")
sketch10.AttachmentSupport = (doc.getObject("XY_Plane"), [""])
sketch10.MapMode = "FlatFace"
sketch10.AttachmentOffset = App.Placement(App.Vector(0, 0, -1.5), App.Rotation())
sketch10.addGeometry([
    Part.LineSegment(App.Vector(1.5, 22.2, 0), App.Vector(1.5, 35.2, 0)),
    Part.ArcOfCircle(Part.Circle(App.Vector(0, 35.2, 0), App.Vector(0, 0, 1), 1.5), math.radians(0), math.radians(180)),
    Part.LineSegment(App.Vector(-1.5, 35.2, 0), App.Vector(-1.5, 22.2, 0)),
    Part.ArcOfCircle(Part.Circle(App.Vector(0, 22.2, 0), App.Vector(0, 0, 1), 1.5), math.radians(180), math.radians(360)),
], False)
sketch10.addConstraint([
    Sketcher.Constraint("Tangent", 0, 2, 1, 1),
    Sketcher.Constraint("Tangent", 1, 2, 2, 1),
    Sketcher.Constraint("Tangent", 2, 2, 3, 1),
    Sketcher.Constraint("Tangent", 3, 2, 0, 1),
    Sketcher.Constraint("Vertical", 0),
    Sketcher.Constraint("Vertical", 2),
    Sketcher.Constraint("PointOnObject", 1, 3, -2),
    Sketcher.Constraint("Radius", 1, 1.5),
    Sketcher.Constraint("DistanceY", 0, 1, 0, 2, 13.0),
    Sketcher.Constraint("DistanceY", -1, 1, 1, 3, 35.23864),
])
sketch10.setExpression("Constraints[7]", "Params.sketch10_radius")
sketch10.setExpression("Constraints[8]", "Params.sketch10_height")
pocket8 = body.newObject("PartDesign::Pocket", "Pocket007")
pocket8.Profile = sketch10
pocket8.Type = "ThroughAll"
pocket8.Reversed = True

# Sketch on XY plane
sketch11 = body.newObject("Sketcher::SketchObject", "Sketch010")
sketch11.AttachmentSupport = (doc.getObject("XY_Plane"), [""])
sketch11.MapMode = "FlatFace"
sketch11.AttachmentOffset = App.Placement(App.Vector(0, 0, -1.5), App.Rotation())
add_polygon(sketch11, [(-6, 35.2), (-6, 34.7), (-2, 34.7), (-2, 35.2)])  # lines 0-3
add_polygon(sketch11, [(-6, 34.2), (-6, 33.7), (-2, 33.7), (-2, 34.2)])  # lines 4-7
add_polygon(sketch11, [(-6, 33.2), (-6, 32.7), (-2, 32.7), (-2, 33.2)])  # lines 8-11
add_polygon(sketch11, [(-6, 32.1), (-6, 31.6), (-2, 31.6), (-2, 32.1)])  # lines 12-15
add_polygon(sketch11, [(-6, 30), (-6, 29.5), (-2, 29.5), (-2, 30)])  # lines 16-19
add_polygon(sketch11, [(-6, 31.1), (-6, 30.6), (-2, 30.6), (-2, 31.1)])  # lines 20-23
add_polygon(sketch11, [(-6, 27.9), (-6, 27.4), (-2, 27.4), (-2, 27.9)])  # lines 24-27
add_polygon(sketch11, [(-6, 29), (-6, 28.5), (-2, 28.5), (-2, 29)])  # lines 28-31
add_polygon(sketch11, [(-6, 26.9), (-6, 26.4), (-2, 26.4), (-2, 26.9)])  # lines 32-35
add_polygon(sketch11, [(-6, 25.9), (-6, 25.4), (-2, 25.4), (-2, 25.9)])  # lines 36-39
add_polygon(sketch11, [(-6, 24.8), (-6, 24.3), (-2, 24.3), (-2, 24.8)])  # lines 40-43
add_polygon(sketch11, [(-6, 23.8), (-6, 23.3), (-2, 23.3), (-2, 23.8)])  # lines 44-47
add_polygon(sketch11, [(-6, 22.7), (-6, 22.2), (-2, 22.2), (-2, 22.7)])  # lines 48-51
sketch11.addConstraint([
    Sketcher.Constraint("Vertical", 0),
    Sketcher.Constraint("Horizontal", 1),
    Sketcher.Constraint("Vertical", 2),
    Sketcher.Constraint("Horizontal", 3),
    Sketcher.Constraint("Vertical", 4),
    Sketcher.Constraint("Horizontal", 5),
    Sketcher.Constraint("Vertical", 6),
    Sketcher.Constraint("Horizontal", 7),
    Sketcher.Constraint("Vertical", 8),
    Sketcher.Constraint("Horizontal", 9),
    Sketcher.Constraint("Vertical", 10),
    Sketcher.Constraint("Horizontal", 11),
    Sketcher.Constraint("Vertical", 12),
    Sketcher.Constraint("Horizontal", 13),
    Sketcher.Constraint("Vertical", 14),
    Sketcher.Constraint("Horizontal", 15),
    Sketcher.Constraint("Vertical", 16),
    Sketcher.Constraint("Horizontal", 17),
    Sketcher.Constraint("Vertical", 18),
    Sketcher.Constraint("Horizontal", 19),
    Sketcher.Constraint("Vertical", 20),
    Sketcher.Constraint("Horizontal", 21),
    Sketcher.Constraint("Vertical", 22),
    Sketcher.Constraint("Horizontal", 23),
    Sketcher.Constraint("Vertical", 24),
    Sketcher.Constraint("Horizontal", 25),
    Sketcher.Constraint("Vertical", 26),
    Sketcher.Constraint("Horizontal", 27),
    Sketcher.Constraint("Vertical", 28),
    Sketcher.Constraint("Horizontal", 29),
    Sketcher.Constraint("Vertical", 30),
    Sketcher.Constraint("Horizontal", 31),
    Sketcher.Constraint("Vertical", 32),
    Sketcher.Constraint("Horizontal", 33),
    Sketcher.Constraint("Vertical", 34),
    Sketcher.Constraint("Horizontal", 35),
    Sketcher.Constraint("Vertical", 36),
    Sketcher.Constraint("Horizontal", 37),
    Sketcher.Constraint("Vertical", 38),
    Sketcher.Constraint("Horizontal", 39),
    Sketcher.Constraint("Vertical", 40),
    Sketcher.Constraint("Horizontal", 41),
    Sketcher.Constraint("Vertical", 42),
    Sketcher.Constraint("Horizontal", 43),
    Sketcher.Constraint("Vertical", 44),
    Sketcher.Constraint("Horizontal", 45),
    Sketcher.Constraint("Vertical", 46),
    Sketcher.Constraint("Horizontal", 47),
    Sketcher.Constraint("Vertical", 48),
    Sketcher.Constraint("Horizontal", 49),
    Sketcher.Constraint("Vertical", 50),
    Sketcher.Constraint("Horizontal", 51),
    Sketcher.Constraint("Vertical", 3, 2, 4, 2),
    Sketcher.Constraint("Vertical", 2, 2, 5, 2),
    Sketcher.Constraint("Vertical", 7, 2, 8, 2),
    Sketcher.Constraint("Vertical", 6, 2, 9, 2),
    Sketcher.Constraint("Vertical", 11, 2, 12, 2),
    Sketcher.Constraint("Vertical", 10, 2, 13, 2),
    Sketcher.Constraint("Vertical", 15, 2, 16, 2),
    Sketcher.Constraint("Vertical", 14, 2, 17, 2),
    Sketcher.Constraint("Vertical", 19, 2, 20, 2),
    Sketcher.Constraint("Vertical", 18, 2, 21, 2),
    Sketcher.Constraint("Vertical", 23, 2, 24, 2),
    Sketcher.Constraint("Vertical", 22, 2, 25, 2),
    Sketcher.Constraint("Vertical", 27, 2, 28, 2),
    Sketcher.Constraint("Vertical", 26, 2, 29, 2),
    Sketcher.Constraint("Vertical", 31, 2, 32, 2),
    Sketcher.Constraint("Vertical", 30, 2, 33, 2),
    Sketcher.Constraint("Vertical", 35, 2, 36, 2),
    Sketcher.Constraint("Vertical", 34, 2, 37, 2),
    Sketcher.Constraint("Vertical", 39, 2, 40, 2),
    Sketcher.Constraint("Vertical", 38, 2, 41, 2),
    Sketcher.Constraint("Vertical", 43, 2, 44, 2),
    Sketcher.Constraint("Vertical", 42, 2, 45, 2),
    Sketcher.Constraint("Vertical", 47, 2, 48, 2),
    Sketcher.Constraint("Vertical", 46, 2, 49, 2),
    Sketcher.Constraint("Equal", 2, 4),
    Sketcher.Constraint("Equal", 6, 8),
    Sketcher.Constraint("Equal", 10, 12),
    Sketcher.Constraint("Equal", 14, 16),
    Sketcher.Constraint("Equal", 18, 20),
    Sketcher.Constraint("Equal", 22, 24),
    Sketcher.Constraint("Equal", 26, 28),
    Sketcher.Constraint("Equal", 30, 32),
    Sketcher.Constraint("Equal", 34, 36),
    Sketcher.Constraint("Equal", 38, 40),
    Sketcher.Constraint("Equal", 42, 44),
    Sketcher.Constraint("Equal", 46, 48),
    Sketcher.Constraint("DistanceX", 1, 1, 1, 2, 4.0),
    Sketcher.Constraint("DistanceY", 0, 2, 0, 1, 0.5),
    Sketcher.Constraint("DistanceX", 0, 2, -1, 1, 6.0),
    Sketcher.Constraint("DistanceY", 12, 2, 0, 2, 3.125),
    Sketcher.Constraint("DistanceY", 16, 2, 8, 2, 3.125),
    Sketcher.Constraint("DistanceY", 24, 2, 20, 2, 3.125),
    Sketcher.Constraint("DistanceY", 32, 2, 16, 2, 3.125),
    Sketcher.Constraint("DistanceY", 36, 2, 28, 2, 3.125),
    Sketcher.Constraint("DistanceY", 40, 2, 24, 2, 3.125),
    Sketcher.Constraint("DistanceY", 44, 2, 32, 2, 3.125),
    Sketcher.Constraint("DistanceY", 48, 2, 36, 2, 3.125),
    Sketcher.Constraint("DistanceY", -1, 1, 0, 2, 34.73864),
    Sketcher.Constraint("DistanceY", -1, 1, 28, 2, 28.48864),
    Sketcher.Constraint("DistanceY", -1, 1, 4, 2, 33.696973),
    Sketcher.Constraint("DistanceY", -1, 1, 8, 2, 32.655306),
    Sketcher.Constraint("DistanceY", -1, 1, 20, 2, 30.571973),
])
sketch11.setExpression("Constraints[140]", "Params.sketch11_width")
sketch11.setExpression("Constraints[141]", "Params.sketch11_height")
pocket9 = body.newObject("PartDesign::Pocket", "Pocket008")
pocket9.Profile = sketch11
pocket9.setExpression("Length", "Params.pocket9_length")
pocket9.Reversed = True
doc.recompute()

fillet = body.newObject("PartDesign::Fillet", "Fillet")
fillet.Base = (pocket9, edges_at(pocket9, [(-57.5, 50, 0), (57.5, 50, 0)]))
fillet.setExpression("Radius", "Params.fillet_radius")

# Sketch on XY plane
sketch12 = body.newObject("Sketcher::SketchObject", "Sketch011")
sketch12.AttachmentSupport = (doc.getObject("XY_Plane"), [""])
sketch12.MapMode = "FlatFace"
sketch12.addGeometry([
    Part.Circle(App.Vector(-24.8, 40.4, 0), App.Vector(0, 0, 1), 1.5),
    Part.Circle(App.Vector(-35.2, 40.4, 0), App.Vector(0, 0, 1), 1.5),
], False)
sketch12.addConstraint([
    Sketcher.Constraint("Equal", 0, 1),
    Sketcher.Constraint("Horizontal", 0, 3, 1, 3),
    Sketcher.Constraint("Diameter", 0, 3.0),
    Sketcher.Constraint("DistanceY", -1, 1, 0, 3, 40.4),
    Sketcher.Constraint("DistanceX", 1, 3, 0, 3, 10.5),
    Sketcher.Constraint("DistanceX", 0, 3, -1, 1, 24.75),
])
sketch12.setExpression("Constraints[2]", "Params.sketch12_diameter")
pocket10 = body.newObject("PartDesign::Pocket", "Pocket009")
pocket10.Profile = sketch12
pocket10.Type = "ThroughAll"
pocket10.Midplane = True

# Sketch on XY plane
sketch13 = body.newObject("Sketcher::SketchObject", "Sketch012")
sketch13.AttachmentSupport = (doc.getObject("XY_Plane"), [""])
sketch13.MapMode = "FlatFace"
sketch13.addGeometry(Part.Circle(App.Vector(51.2, 41.5, 0), App.Vector(0, 0, 1), 1.5), False)  # 0
sketch13.addGeometry(Part.Circle(App.Vector(-46.2, 41.5, 0), App.Vector(0, 0, 1), 1.5), False)  # 1
add_polygon(sketch13, [(43, 33.7), (43, 30.7), (54.5, 30.7), (54.5, 33.7)])  # lines 2-5
add_polygon(sketch13, [(-54.5, 33.7), (-54.5, 30.7), (-43, 30.7), (-43, 33.7)])  # lines 6-9
sketch13.addConstraint([
    Sketcher.Constraint("Vertical", 2),
    Sketcher.Constraint("Horizontal", 3),
    Sketcher.Constraint("Vertical", 4),
    Sketcher.Constraint("Horizontal", 5),
    Sketcher.Constraint("Vertical", 6),
    Sketcher.Constraint("Horizontal", 7),
    Sketcher.Constraint("Vertical", 8),
    Sketcher.Constraint("Horizontal", 9),
    Sketcher.Constraint("Equal", 0, 1),
    Sketcher.Constraint("Symmetric", 3, 2, 6, 2, -2),
    Sketcher.Constraint("Symmetric", 5, 2, 8, 2, -2),
    Sketcher.Constraint("Horizontal", 0, 3, 1, 3),
    Sketcher.Constraint("Diameter", 0, 3.0),
    Sketcher.Constraint("DistanceY", 2, 2, 2, 1, 3.0),
    Sketcher.Constraint("DistanceX", 3, 1, 3, 2, 11.5),
    Sketcher.Constraint("DistanceX", -1, 1, 2, 2, 43.0),
    Sketcher.Constraint("DistanceY", -1, 1, 0, 3, 41.5),
    Sketcher.Constraint("DistanceY", -1, 1, 2, 2, 30.7),
    Sketcher.Constraint("DistanceX", 1, 3, 0, 3, 97.5),
    Sketcher.Constraint("DistanceX", -1, 1, 0, 3, 51.25),
])
sketch13.setExpression("Constraints[20]", "Params.sketch13_diameter")
sketch13.setExpression("Constraints[21]", "Params.sketch13_height")
sketch13.setExpression("Constraints[22]", "Params.sketch13_width")
pocket11 = body.newObject("PartDesign::Pocket", "Pocket010")
pocket11.Profile = sketch13
pocket11.Type = "ThroughAll"
pocket11.Midplane = True

# Sketch on XY plane
sketch14 = body.newObject("Sketcher::SketchObject", "Sketch013")
sketch14.AttachmentSupport = (doc.getObject("XY_Plane"), [""])
sketch14.MapMode = "FlatFace"
sketch14.AttachmentOffset = App.Placement(App.Vector(0, 0, -1.5), App.Rotation())
sketch14.addGeometry([
    Part.Circle(App.Vector(42.5, -15.2, 0), App.Vector(0, 0, 1), 1.5),  # 0
    Part.Circle(App.Vector(26.7, -31, 0), App.Vector(0, 0, 1), 1.5),  # 1
    Part.LineSegment(App.Vector(38.5, -38.9, 0), App.Vector(46.5, -38.9, 0)),  # 2
    Part.ArcOfCircle(Part.Circle(App.Vector(46.5, -39.9, 0), App.Vector(0, 0, 1), 1), math.radians(0), math.radians(90)),  # 3
    Part.LineSegment(App.Vector(47.5, -39.9, 0), App.Vector(47.5, -40.9, 0)),  # 4
    Part.ArcOfCircle(Part.Circle(App.Vector(46.5, -40.9, 0), App.Vector(0, 0, 1), 1), math.radians(-90), math.radians(0)),  # 5
    Part.LineSegment(App.Vector(46.5, -41.9, 0), App.Vector(38.5, -41.9, 0)),  # 6
    Part.ArcOfCircle(Part.Circle(App.Vector(38.5, -40.9, 0), App.Vector(0, 0, 1), 1), math.radians(-180), math.radians(-90)),  # 7
    Part.LineSegment(App.Vector(37.5, -40.9, 0), App.Vector(37.5, -39.9, 0)),  # 8
    Part.ArcOfCircle(Part.Circle(App.Vector(38.5, -39.9, 0), App.Vector(0, 0, 1), 1), math.radians(90), math.radians(180)),  # 9
], False)
sketch14.addConstraint([
    Sketcher.Constraint("Tangent", 2, 2, 3, 2),
    Sketcher.Constraint("Tangent", 3, 1, 4, 1),
    Sketcher.Constraint("Tangent", 4, 2, 5, 2),
    Sketcher.Constraint("Tangent", 5, 1, 6, 1),
    Sketcher.Constraint("Tangent", 6, 2, 7, 2),
    Sketcher.Constraint("Tangent", 7, 1, 8, 1),
    Sketcher.Constraint("Tangent", 8, 2, 9, 2),
    Sketcher.Constraint("Tangent", 9, 1, 2, 1),
    Sketcher.Constraint("Horizontal", 2),
    Sketcher.Constraint("Vertical", 4),
    Sketcher.Constraint("Horizontal", 6),
    Sketcher.Constraint("Vertical", 8),
    Sketcher.Constraint("Equal", 0, 1),
    Sketcher.Constraint("Equal", 3, 5),
    Sketcher.Constraint("Equal", 5, 7),
    Sketcher.Constraint("Equal", 7, 9),
    Sketcher.Constraint("Diameter", 0, 3.0),
    Sketcher.Constraint("Radius", 3, 1.0),
    Sketcher.Constraint("DistanceX", 2, 1, 2, 2, 8.0),
    Sketcher.Constraint("DistanceY", 4, 2, 4, 1, 1.0),
    Sketcher.Constraint("DistanceY", 1, 3, -1, 1, 31.0),
    Sketcher.Constraint("DistanceX", 0, 3, 3, 3, 4.0),
    Sketcher.Constraint("DistanceX", -1, 1, 0, 3, 42.5),
    Sketcher.Constraint("DistanceY", 0, 3, -1, 1, 15.2),
    Sketcher.Constraint("DistanceX", -1, 1, 1, 3, 26.7),
    Sketcher.Constraint("DistanceY", 3, 3, -1, 1, 39.908712),
])
sketch14.setExpression("Constraints[16]", "Params.sketch14_diameter")
sketch14.setExpression("Constraints[17]", "Params.sketch14_radius")
sketch14.setExpression("Constraints[18]", "Params.sketch14_width")
sketch14.setExpression("Constraints[19]", "Params.sketch14_height")
pocket12 = body.newObject("PartDesign::Pocket", "Pocket011")
pocket12.Profile = sketch14
pocket12.Type = "ThroughAll"
pocket12.Midplane = True

doc.recompute()
